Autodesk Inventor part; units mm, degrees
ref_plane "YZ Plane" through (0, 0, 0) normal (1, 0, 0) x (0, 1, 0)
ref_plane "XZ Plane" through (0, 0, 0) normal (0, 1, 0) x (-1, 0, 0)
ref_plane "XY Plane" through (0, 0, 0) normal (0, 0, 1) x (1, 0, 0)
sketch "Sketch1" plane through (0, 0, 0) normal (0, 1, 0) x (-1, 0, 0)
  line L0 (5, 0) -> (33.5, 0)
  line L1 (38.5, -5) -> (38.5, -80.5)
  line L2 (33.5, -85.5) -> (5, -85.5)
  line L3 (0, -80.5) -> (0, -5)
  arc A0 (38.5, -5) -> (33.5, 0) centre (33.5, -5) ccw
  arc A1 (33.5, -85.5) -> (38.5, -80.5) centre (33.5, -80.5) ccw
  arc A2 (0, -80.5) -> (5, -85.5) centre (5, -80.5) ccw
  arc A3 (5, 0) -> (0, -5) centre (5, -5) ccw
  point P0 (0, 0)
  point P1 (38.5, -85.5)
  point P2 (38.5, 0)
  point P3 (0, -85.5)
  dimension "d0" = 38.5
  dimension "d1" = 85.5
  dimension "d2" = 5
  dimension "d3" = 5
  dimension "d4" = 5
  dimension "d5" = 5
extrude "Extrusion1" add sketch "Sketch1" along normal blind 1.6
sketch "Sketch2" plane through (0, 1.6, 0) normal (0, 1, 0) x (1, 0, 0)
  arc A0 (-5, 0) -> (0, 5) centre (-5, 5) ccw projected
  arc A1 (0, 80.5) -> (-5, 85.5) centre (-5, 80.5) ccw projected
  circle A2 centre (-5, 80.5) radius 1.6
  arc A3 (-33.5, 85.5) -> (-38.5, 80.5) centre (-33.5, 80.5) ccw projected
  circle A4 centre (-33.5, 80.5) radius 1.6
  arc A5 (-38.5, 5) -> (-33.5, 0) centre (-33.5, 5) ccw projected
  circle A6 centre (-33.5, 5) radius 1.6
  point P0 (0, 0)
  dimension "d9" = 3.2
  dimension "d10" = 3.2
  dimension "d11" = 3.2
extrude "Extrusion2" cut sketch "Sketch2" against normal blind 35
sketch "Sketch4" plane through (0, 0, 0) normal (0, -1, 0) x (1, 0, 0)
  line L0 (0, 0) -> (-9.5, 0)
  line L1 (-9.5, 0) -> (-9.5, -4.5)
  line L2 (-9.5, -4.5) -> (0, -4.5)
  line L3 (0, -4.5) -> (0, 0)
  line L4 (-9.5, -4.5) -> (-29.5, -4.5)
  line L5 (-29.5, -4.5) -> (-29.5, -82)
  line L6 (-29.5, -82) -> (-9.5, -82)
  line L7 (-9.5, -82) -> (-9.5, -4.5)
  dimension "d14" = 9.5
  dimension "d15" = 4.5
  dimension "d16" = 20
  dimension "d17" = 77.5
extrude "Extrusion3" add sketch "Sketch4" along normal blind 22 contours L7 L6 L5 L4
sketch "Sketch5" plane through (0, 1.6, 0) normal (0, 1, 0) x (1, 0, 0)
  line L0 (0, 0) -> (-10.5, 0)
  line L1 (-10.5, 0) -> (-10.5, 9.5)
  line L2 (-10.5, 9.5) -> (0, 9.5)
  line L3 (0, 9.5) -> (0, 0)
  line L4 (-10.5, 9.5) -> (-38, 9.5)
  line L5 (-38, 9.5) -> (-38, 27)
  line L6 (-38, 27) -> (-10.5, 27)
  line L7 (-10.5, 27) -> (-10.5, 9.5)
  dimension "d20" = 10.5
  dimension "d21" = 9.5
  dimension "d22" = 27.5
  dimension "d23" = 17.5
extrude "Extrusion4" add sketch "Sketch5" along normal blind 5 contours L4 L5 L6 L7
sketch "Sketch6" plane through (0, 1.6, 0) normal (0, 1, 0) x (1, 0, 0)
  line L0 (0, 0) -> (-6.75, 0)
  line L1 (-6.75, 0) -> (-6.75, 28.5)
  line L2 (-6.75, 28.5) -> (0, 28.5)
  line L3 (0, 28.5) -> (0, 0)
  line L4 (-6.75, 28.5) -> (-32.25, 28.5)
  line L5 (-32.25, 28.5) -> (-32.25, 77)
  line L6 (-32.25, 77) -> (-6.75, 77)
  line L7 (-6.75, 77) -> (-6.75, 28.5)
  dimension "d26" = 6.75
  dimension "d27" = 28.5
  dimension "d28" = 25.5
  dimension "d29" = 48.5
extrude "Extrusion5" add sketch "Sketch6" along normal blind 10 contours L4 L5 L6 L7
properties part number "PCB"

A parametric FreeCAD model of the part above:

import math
import FreeCAD as App
import Part
import Sketcher

V = App.Vector

doc = App.newDocument("Part")
body = doc.addObject("PartDesign::Body", "Body")

sketch1 = body.newObject("Sketcher::SketchObject", "Sketch")
sketch1.AttachmentSupport = (doc.getObject("XZ_Plane"), [""])
sketch1.MapMode = "FlatFace"
sketch1.addGeometry([
    Part.LineSegment(V(-34, 0, 0), V(-5, 0, 0)),
    Part.ArcOfCircle(Part.Circle(V(-5, -5, 0), V(0, 0, 1), 5), math.radians(0), math.radians(90)),
    Part.LineSegment(V(0, -5, 0), V(0, -80, 0)),
    Part.ArcOfCircle(Part.Circle(V(-5, -80, 0), V(0, 0, 1), 5), math.radians(-90), math.radians(0)),
    Part.LineSegment(V(-5, -86, 0), V(-34, -86, 0)),
    Part.ArcOfCircle(Part.Circle(V(-34, -80, 0), V(0, 0, 1), 5), math.radians(180), math.radians(270)),
    Part.LineSegment(V(-38, -80, 0), V(-38, -5, 0)),
    Part.ArcOfCircle(Part.Circle(V(-34, -5, 0), V(0, 0, 1), 5), math.radians(90), math.radians(180)),
], False)
sketch1.addConstraint([
    Sketcher.Constraint("Tangent", 0, 2, 1, 2),
    Sketcher.Constraint("Tangent", 1, 1, 2, 1),
    Sketcher.Constraint("Tangent", 2, 2, 3, 2),
    Sketcher.Constraint("Tangent", 3, 1, 4, 1),
    Sketcher.Constraint("Tangent", 4, 2, 5, 2),
    Sketcher.Constraint("Tangent", 5, 1, 6, 1),
    Sketcher.Constraint("Tangent", 6, 2, 7, 2),
    Sketcher.Constraint("Tangent", 7, 1, 0, 1),
    Sketcher.Constraint("Horizontal", 0),
    Sketcher.Constraint("Vertical", 2),
    Sketcher.Constraint("Horizontal", 4),
    Sketcher.Constraint("Vertical", 6),
    Sketcher.Constraint("Equal", 1, 3),
    Sketcher.Constraint("Equal", 3, 5),
    Sketcher.Constraint("Equal", 5, 7),
    Sketcher.Constraint("PointOnObject", 0, 2, -1),
    Sketcher.Constraint("PointOnObject", 1, 1, -2),
    Sketcher.Constraint("Radius", 1, 5.0),
    Sketcher.Constraint("DistanceY", 3, 1, -1, 1, 85.5),
    Sketcher.Constraint("DistanceX", 5, 1, -1, 1, 38.5),
])
pad1 = body.newObject("PartDesign::Pad", "Pad")
pad1.Profile = sketch1
pad1.Length = 1.6
pad1.Reversed = True

sketch2 = body.newObject("Sketcher::SketchObject", "Sketch001")
sketch2.AttachmentSupport = (doc.getObject("XZ_Plane"), [""])
sketch2.MapMode = "FlatFace"
sketch2.AttachmentOffset = App.Placement(V(0, 0, -1.6), App.Rotation())
sketch2.addGeometry([
    Part.Circle(V(-5, -80.5, 0), V(0, 0, 1), 1.6),
    Part.Circle(V(-33.5, -80.5, 0), V(0, 0, 1), 1.6),
    Part.Circle(V(-33.5, -5, 0), V(0, 0, 1), 1.6),
], False)
sketch2.addConstraint([
    Sketcher.Constraint("Equal", 0, 1),
    Sketcher.Constraint("Equal", 1, 2),
    Sketcher.Constraint("Horizontal", 0, 3, 1, 3),
    Sketcher.Constraint("Vertical", 1, 3, 2, 3),
    Sketcher.Constraint("Diameter", 0, 3.2),
    Sketcher.Constraint("DistanceX", 0, 3, -1, 1, 5.0),
    Sketcher.Constraint("DistanceY", 2, 3, -1, 1, 5.0),
    Sketcher.Constraint("DistanceY", 0, 3, -1, 1, 80.5),
    Sketcher.Constraint("DistanceX", 1, 3, -1, 1, 33.5),
])
pocket1 = body.newObject("PartDesign::Pocket", "Pocket")
pocket1.Profile = sketch2
pocket1.Length = 35
pocket1.Reversed = True

sketch3 = body.newObject("Sketcher::SketchObject", "Sketch002")
sketch3.AttachmentSupport = (doc.getObject("XZ_Plane"), [""])
sketch3.MapMode = "FlatFace"
sketch3.addGeometry([
    Part.LineSegment(V(-10, -82, 0), V(-10, -4, 0)),
    Part.LineSegment(V(-10, -4, 0), V(-30, -4, 0)),
    Part.LineSegment(V(-30, -4, 0), V(-30, -82, 0)),
    Part.LineSegment(V(-30, -82, 0), V(-10, -82, 0)),
], False)
sketch3.addConstraint([
    Sketcher.Constraint("Coincident", 0, 2, 1, 1),
    Sketcher.Constraint("Coincident", 1, 2, 2, 1),
    Sketcher.Constraint("Coincident", 2, 2, 3, 1),
    Sketcher.Constraint("Coincident", 3, 2, 0, 1),
    Sketcher.Constraint("Vertical", 0),
    Sketcher.Constraint("Horizontal", 1),
    Sketcher.Constraint("Vertical", 2),
    Sketcher.Constraint("Horizontal", 3),
    Sketcher.Constraint("DistanceX", 1, 2, 1, 1, 20.0),
    Sketcher.Constraint("DistanceY", 0, 1, 0, 2, 77.5),
    Sketcher.Constraint("DistanceX", 0, 2, -1, 1, 9.5),
    Sketcher.Constraint("DistanceY", 0, 2, -1, 1, 4.5),
])
pad2 = body.newObject("PartDesign::Pad", "Pad001")
pad2.Profile = sketch3
pad2.Length = 22

sketch4 = body.newObject("Sketcher::SketchObject", "Sketch003")
sketch4.AttachmentSupport = (doc.getObject("XZ_Plane"), [""])
sketch4.MapMode = "FlatFace"
sketch4.AttachmentOffset = App.Placement(V(0, 0, -1.6), App.Rotation())
sketch4.addGeometry([
    Part.LineSegment(V(-38, -10, 0), V(-10, -10, 0)),
    Part.LineSegment(V(-10, -10, 0), V(-10, -27, 0)),
    Part.LineSegment(V(-10, -27, 0), V(-38, -27, 0)),
    Part.LineSegment(V(-38, -27, 0), V(-38, -10, 0)),
], False)
sketch4.addConstraint([
    Sketcher.Constraint("Coincident", 0, 2, 1, 1),
    Sketcher.Constraint("Coincident", 1, 2, 2, 1),
    Sketcher.Constraint("Coincident", 2, 2, 3, 1),
    Sketcher.Constraint("Coincident", 3, 2, 0, 1),
    Sketcher.Constraint("Horizontal", 0),
    Sketcher.Constraint("Vertical", 1),
    Sketcher.Constraint("Horizontal", 2),
    Sketcher.Constraint("Vertical", 3),
    Sketcher.Constraint("DistanceX", 0, 1, 0, 2, 27.5),
    Sketcher.Constraint("DistanceY", 1, 2, 1, 1, 17.5),
    Sketcher.Constraint("DistanceX", 0, 2, -1, 1, 10.5),
    Sketcher.Constraint("DistanceY", 0, 2, -1, 1, 9.5),
])
pad3 = body.newObject("PartDesign::Pad", "Pad002")
pad3.Profile = sketch4
pad3.Length = 5
pad3.Reversed = True

sketch5 = body.newObject("Sketcher::SketchObject", "Sketch004")
sketch5.AttachmentSupport = (doc.getObject("XZ_Plane"), [""])
sketch5.MapMode = "FlatFace"
sketch5.AttachmentOffset = App.Placement(V(0, 0, -1.6), App.Rotation())
sketch5.addGeometry([
    Part.LineSegment(V(-32, -28, 0), V(-7, -28, 0)),
    Part.LineSegment(V(-7, -28, 0), V(-7, -77, 0)),
    Part.LineSegment(V(-7, -77, 0), V(-32, -77, 0)),
    Part.LineSegment(V(-32, -77, 0), V(-32, -28, 0)),
], False)
sketch5.addConstraint([
    Sketcher.Constraint("Coincident", 0, 2, 1, 1),
    Sketcher.Constraint("Coincident", 1, 2, 2, 1),
    Sketcher.Constraint("Coincident", 2, 2, 3, 1),
    Sketcher.Constraint("Coincident", 3, 2, 0, 1),
    Sketcher.Constraint("Horizontal", 0),
    Sketcher.Constraint("Vertical", 1),
    Sketcher.Constraint("Horizontal", 2),
    Sketcher.Constraint("Vertical", 3),
    Sketcher.Constraint("DistanceX", 0, 1, 0, 2, 25.5),
    Sketcher.Constraint("DistanceY", 1, 2, 1, 1, 48.5),
    Sketcher.Constraint("DistanceY", 0, 2, -1, 1, 28.5),
    Sketcher.Constraint("DistanceX", 0, 2, -1, 1, 6.75),
])
pad4 = body.newObject("PartDesign::Pad", "Pad003")
pad4.Profile = sketch5
pad4.Length = 10
pad4.Reversed = True

doc.recompute()
